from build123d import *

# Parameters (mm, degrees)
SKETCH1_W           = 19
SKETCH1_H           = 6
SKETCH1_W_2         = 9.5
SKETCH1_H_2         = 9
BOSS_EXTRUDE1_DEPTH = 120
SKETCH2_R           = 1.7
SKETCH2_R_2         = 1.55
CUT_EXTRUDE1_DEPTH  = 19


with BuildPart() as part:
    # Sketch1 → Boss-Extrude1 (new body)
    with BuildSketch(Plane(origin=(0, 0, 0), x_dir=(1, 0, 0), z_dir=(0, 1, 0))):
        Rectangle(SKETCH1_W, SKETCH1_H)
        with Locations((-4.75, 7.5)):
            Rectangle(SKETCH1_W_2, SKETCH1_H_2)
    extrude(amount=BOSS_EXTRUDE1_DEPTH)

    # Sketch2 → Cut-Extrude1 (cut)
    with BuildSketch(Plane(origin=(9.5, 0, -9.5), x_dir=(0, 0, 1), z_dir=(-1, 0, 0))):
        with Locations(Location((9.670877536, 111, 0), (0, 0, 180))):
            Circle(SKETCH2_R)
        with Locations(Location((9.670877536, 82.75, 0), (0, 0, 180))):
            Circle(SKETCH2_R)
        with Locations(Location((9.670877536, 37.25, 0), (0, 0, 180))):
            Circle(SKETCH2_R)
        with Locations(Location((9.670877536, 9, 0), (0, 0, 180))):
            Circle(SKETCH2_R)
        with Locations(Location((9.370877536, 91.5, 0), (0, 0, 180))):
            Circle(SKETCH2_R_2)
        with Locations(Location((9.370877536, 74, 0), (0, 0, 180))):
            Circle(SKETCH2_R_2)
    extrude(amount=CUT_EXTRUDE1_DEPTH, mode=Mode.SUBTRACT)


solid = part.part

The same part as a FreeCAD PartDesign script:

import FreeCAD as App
import Part
import Sketcher
Q = App.Units.Quantity

doc = App.newDocument("Part")
body = doc.addObject("PartDesign::Body", "Body")

# Sketch on XZ plane
sketch1 = body.newObject("Sketcher::SketchObject", "Sketch")
sketch1.AttachmentSupport = (doc.getObject("XZ_Plane"), [""])
sketch1.MapMode = "FlatFace"
sketch1.addGeometry([
    Part.LineSegment(App.Vector(-9.5, 3, 0), App.Vector(9.5, 3, 0)),  # 0
    Part.LineSegment(App.Vector(9.5, 3, 0), App.Vector(9.5, -3, 0)),  # 1
    Part.LineSegment(App.Vector(9.5, -3, 0), App.Vector(0, -3, 0)),  # 2
    Part.LineSegment(App.Vector(0, -3, 0), App.Vector(0, -12, 0)),  # 3
    Part.LineSegment(App.Vector(0, -12, 0), App.Vector(-9.5, -12, 0)),  # 4
    Part.LineSegment(App.Vector(-9.5, -12, 0), App.Vector(-9.5, 3, 0)),  # 5
], False)
sketch1.addConstraint([
    Sketcher.Constraint("Coincident", 0, 2, 1, 1),
    Sketcher.Constraint("Coincident", 1, 2, 2, 1),
    Sketcher.Constraint("Coincident", 2, 2, 3, 1),
    Sketcher.Constraint("Coincident", 3, 2, 4, 1),
    Sketcher.Constraint("Coincident", 4, 2, 5, 1),
    Sketcher.Constraint("Coincident", 5, 2, 0, 1),
    Sketcher.Constraint("Horizontal", 0),
    Sketcher.Constraint("Vertical", 1),
    Sketcher.Constraint("Horizontal", 2),
    Sketcher.Constraint("Vertical", 3),
    Sketcher.Constraint("Horizontal", 4),
    Sketcher.Constraint("Vertical", 5),
    Sketcher.Constraint("Symmetric", 1, 2, 5, 2, -1, 1),
    Sketcher.Constraint("PointOnObject", 2, 2, -2),
    Sketcher.Constraint("DistanceX", 0, 1, 0, 2, Q("19 mm")),
    Sketcher.Constraint("DistanceY", 1, 2, 1, 1, Q("6 mm")),
    Sketcher.Constraint("DistanceY", 3, 2, 3, 1, Q("9 mm")),
])
pad1 = body.newObject("PartDesign::Pad", "Pad")
pad1.Profile = sketch1
pad1.Length = 120
pad1.Reversed = True

# Sketch on YZ plane
sketch2 = body.newObject("Sketcher::SketchObject", "Sketch001")
sketch2.AttachmentSupport = (doc.getObject("YZ_Plane"), [""])
sketch2.MapMode = "FlatFace"
sketch2.AttachmentOffset = App.Placement(App.Vector(0, 0, 9.5), App.Rotation())
sketch2.addGeometry([
    Part.Circle(App.Vector(111, 0.170878, 0), App.Vector(0, 0, 1), 1.7),  # 0
    Part.Circle(App.Vector(82.75, 0.170878, 0), App.Vector(0, 0, 1), 1.7),  # 1
    Part.Circle(App.Vector(37.25, 0.170878, 0), App.Vector(0, 0, 1), 1.7),  # 2
    Part.Circle(App.Vector(9, 0.170878, 0), App.Vector(0, 0, 1), 1.7),  # 3
    Part.Circle(App.Vector(91.5, -0.129122, 0), App.Vector(0, 0, 1), 1.55),  # 4
    Part.Circle(App.Vector(74, -0.129122, 0), App.Vector(0, 0, 1), 1.55),  # 5
], False)
sketch2.addConstraint([
    Sketcher.Constraint("Equal", 0, 1),
    Sketcher.Constraint("Equal", 1, 2),
    Sketcher.Constraint("Equal", 2, 3),
    Sketcher.Constraint("Equal", 4, 5),
    Sketcher.Constraint("Horizontal", 0, 3, 1, 3),
    Sketcher.Constraint("Horizontal", 1, 3, 2, 3),
    Sketcher.Constraint("Horizontal", 2, 3, 3, 3),
    Sketcher.Constraint("Horizontal", 4, 3, 5, 3),
    Sketcher.Constraint("Diameter", 0, Q("3.4 mm")),
    Sketcher.Constraint("Diameter", 4, Q("3.1 mm")),
    Sketcher.Constraint("DistanceX", -1, 1, 0, 3, Q("111 mm")),
    Sketcher.Constraint("DistanceX", -1, 1, 3, 3, Q("9 mm")),
    Sketcher.Constraint("DistanceX", -1, 1, 5, 3, Q("74 mm")),
    Sketcher.Constraint("DistanceX", -1, 1, 4, 3, Q("91.5 mm")),
    Sketcher.Constraint("DistanceX", 2, 3, 1, 3, Q("45.5 mm")),
    Sketcher.Constraint("DistanceY", 4, 3, 1, 3, Q("0.3 mm")),
    Sketcher.Constraint("DistanceX", -1, 1, 1, 3, Q("82.75 mm")),
    Sketcher.Constraint("DistanceY", -1, 1, 0, 3, Q("0.170878 mm")),
])
pocket1 = body.newObject("PartDesign::Pocket", "Pocket")
pocket1.Profile = sketch2
pocket1.Length = 19

doc.recompute()
